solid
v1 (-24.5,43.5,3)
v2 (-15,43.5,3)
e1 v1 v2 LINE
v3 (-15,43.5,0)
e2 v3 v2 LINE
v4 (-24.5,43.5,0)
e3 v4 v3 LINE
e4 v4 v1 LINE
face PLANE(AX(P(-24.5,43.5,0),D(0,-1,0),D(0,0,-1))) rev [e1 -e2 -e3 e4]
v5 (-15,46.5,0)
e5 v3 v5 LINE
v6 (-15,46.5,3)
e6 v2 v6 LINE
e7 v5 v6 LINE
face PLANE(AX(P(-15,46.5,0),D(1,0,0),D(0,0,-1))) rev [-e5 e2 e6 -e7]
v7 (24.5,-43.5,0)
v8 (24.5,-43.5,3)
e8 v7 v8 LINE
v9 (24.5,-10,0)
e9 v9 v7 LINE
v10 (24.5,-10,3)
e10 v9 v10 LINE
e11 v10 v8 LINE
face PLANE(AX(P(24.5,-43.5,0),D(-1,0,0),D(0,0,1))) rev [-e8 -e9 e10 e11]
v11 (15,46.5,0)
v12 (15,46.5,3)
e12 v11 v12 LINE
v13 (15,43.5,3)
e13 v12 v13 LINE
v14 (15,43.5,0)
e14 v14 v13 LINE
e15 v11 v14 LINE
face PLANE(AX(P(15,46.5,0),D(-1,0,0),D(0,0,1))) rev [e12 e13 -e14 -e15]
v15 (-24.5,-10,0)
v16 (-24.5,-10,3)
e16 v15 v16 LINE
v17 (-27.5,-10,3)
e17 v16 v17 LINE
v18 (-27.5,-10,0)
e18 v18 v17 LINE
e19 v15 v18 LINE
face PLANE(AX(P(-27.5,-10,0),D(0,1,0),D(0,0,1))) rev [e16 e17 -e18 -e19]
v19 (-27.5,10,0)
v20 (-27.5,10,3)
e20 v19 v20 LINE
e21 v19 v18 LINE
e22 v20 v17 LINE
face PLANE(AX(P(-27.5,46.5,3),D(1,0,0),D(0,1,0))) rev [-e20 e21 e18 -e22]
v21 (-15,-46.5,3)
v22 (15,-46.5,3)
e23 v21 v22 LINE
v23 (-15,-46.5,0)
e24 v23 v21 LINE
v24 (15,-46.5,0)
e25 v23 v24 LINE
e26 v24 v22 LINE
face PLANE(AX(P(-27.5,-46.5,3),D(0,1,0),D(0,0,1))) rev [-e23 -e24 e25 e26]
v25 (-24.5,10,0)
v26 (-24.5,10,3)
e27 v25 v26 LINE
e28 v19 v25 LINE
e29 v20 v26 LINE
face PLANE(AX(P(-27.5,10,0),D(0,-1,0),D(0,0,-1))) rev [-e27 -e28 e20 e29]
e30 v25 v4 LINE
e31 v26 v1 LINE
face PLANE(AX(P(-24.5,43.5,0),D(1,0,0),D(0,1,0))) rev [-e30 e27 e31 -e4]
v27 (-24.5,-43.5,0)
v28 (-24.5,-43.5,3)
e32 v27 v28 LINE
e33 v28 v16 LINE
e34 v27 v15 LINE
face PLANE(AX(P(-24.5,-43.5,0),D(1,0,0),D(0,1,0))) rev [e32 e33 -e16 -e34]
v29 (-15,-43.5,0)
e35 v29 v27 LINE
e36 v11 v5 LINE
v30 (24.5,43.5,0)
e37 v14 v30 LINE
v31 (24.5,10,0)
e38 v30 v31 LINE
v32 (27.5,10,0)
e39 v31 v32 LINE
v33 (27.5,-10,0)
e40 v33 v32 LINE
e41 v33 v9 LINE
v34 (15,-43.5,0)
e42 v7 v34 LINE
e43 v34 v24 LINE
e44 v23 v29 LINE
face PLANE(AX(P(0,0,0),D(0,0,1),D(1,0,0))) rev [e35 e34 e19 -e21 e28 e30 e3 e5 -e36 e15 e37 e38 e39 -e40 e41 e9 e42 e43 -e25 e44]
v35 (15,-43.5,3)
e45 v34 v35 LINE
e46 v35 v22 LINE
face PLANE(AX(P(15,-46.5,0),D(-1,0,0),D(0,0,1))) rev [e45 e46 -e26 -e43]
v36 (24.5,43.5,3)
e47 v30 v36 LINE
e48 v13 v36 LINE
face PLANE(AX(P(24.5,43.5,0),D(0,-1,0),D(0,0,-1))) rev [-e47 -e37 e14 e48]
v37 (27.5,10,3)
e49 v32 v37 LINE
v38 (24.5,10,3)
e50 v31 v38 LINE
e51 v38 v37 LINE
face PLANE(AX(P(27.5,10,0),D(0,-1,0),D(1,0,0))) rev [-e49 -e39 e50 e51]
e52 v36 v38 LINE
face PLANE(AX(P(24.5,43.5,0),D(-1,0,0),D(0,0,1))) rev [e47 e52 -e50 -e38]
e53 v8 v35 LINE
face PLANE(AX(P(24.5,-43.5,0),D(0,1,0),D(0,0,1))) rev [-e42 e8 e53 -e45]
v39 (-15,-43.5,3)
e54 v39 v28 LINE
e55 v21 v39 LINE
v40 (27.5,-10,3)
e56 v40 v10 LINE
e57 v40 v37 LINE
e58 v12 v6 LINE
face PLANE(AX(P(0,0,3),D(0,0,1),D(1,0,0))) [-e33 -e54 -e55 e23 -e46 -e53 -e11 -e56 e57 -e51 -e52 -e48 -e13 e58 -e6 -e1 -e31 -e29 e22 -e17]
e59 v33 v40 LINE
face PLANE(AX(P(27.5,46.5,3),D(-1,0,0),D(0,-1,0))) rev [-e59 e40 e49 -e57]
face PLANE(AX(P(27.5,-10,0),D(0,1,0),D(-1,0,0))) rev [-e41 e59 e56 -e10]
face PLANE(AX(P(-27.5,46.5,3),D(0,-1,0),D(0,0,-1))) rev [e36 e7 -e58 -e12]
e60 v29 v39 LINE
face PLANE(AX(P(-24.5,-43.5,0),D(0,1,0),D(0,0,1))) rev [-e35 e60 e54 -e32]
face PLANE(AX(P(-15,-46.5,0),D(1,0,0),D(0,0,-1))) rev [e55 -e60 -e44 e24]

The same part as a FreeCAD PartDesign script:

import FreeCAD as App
import Part
import Sketcher
from FreeCAD import Vector


def add_polygon(sketch, points):
    """Adds a closed chain of lines whose ends are joined by coincident constraints."""
    first, n = sketch.GeometryCount, len(points)
    for a, b in zip(points, points[1:] + points[:1]):
        sketch.addGeometry(Part.LineSegment(App.Vector(*a, 0), App.Vector(*b, 0)), False)
    for i in range(n):
        sketch.addConstraint(Sketcher.Constraint("Coincident", first + i, 2, first + (i + 1) % n, 1))

doc = App.newDocument("Part")
params = doc.addObject("Spreadsheet::Sheet", "Params")
for row, (alias, value) in enumerate([
    ("sketch1_width", "55 mm"),
    ("sketch1_height", "93 mm"),
    ("pad1_length", "3 mm"),
    ("sketch2_width", "3 mm"),
    ("sketch2_width2", "12.5 mm"),
    ("sketch2_height", "36.5 mm"),
    ("pocket1_length", "3 mm"),
], start=1):
    params.set(f"A{row}", alias)
    params.set(f"B{row}", "=" + value)
    params.setAlias(f"B{row}", alias)

body = doc.addObject("PartDesign::Body", "Body")

# Sketch on XY plane
sketch1 = body.newObject("Sketcher::SketchObject", "Sketch")
sketch1.AttachmentSupport = (doc.getObject("XY_Plane"), [""])
sketch1.MapMode = "FlatFace"
add_polygon(sketch1, [(-27.5, 46.5), (-27.5, -46.5), (27.5, -46.5), (27.5, 46.5)])  # lines 0-3
sketch1.addConstraint([
    Sketcher.Constraint("Vertical", 0),
    Sketcher.Constraint("Horizontal", 1),
    Sketcher.Constraint("Vertical", 2),
    Sketcher.Constraint("Horizontal", 3),
    Sketcher.Constraint("Symmetric", 0, 2, 2, 2, -1, 1),
    Sketcher.Constraint("DistanceX", 1, 1, 1, 2, 55.0),
    Sketcher.Constraint("DistanceY", 0, 2, 0, 1, 93.0),
])
sketch1.setExpression("Constraints[9]", "Params.sketch1_width")
sketch1.setExpression("Constraints[10]", "Params.sketch1_height")
pad1 = body.newObject("PartDesign::Pad", "Pad")
pad1.Profile = sketch1
pad1.setExpression("Length", "Params.pad1_length")

# Sketch on XY plane
sketch2 = body.newObject("Sketcher::SketchObject", "Sketch001")
sketch2.AttachmentSupport = (doc.getObject("XY_Plane"), [""])
sketch2.MapMode = "FlatFace"
sketch2.AttachmentOffset = App.Placement(Vector(0, 0, 3), App.Rotation())
add_polygon(sketch2, [(-15, 46.5), (-27.5, 46.5), (-27.5, 10), (-24.5, 10), (-24.5, 43.5), (-15, 43.5)])  # lines 0-5
add_polygon(sketch2, [(-27.5, -10), (-27.5, -46.5), (-15, -46.5), (-15, -43.5), (-24.5, -43.5), (-24.5, -10)])  # lines 6-11
add_polygon(sketch2, [(15, -46.5), (27.5, -46.5), (27.5, -10), (24.5, -10), (24.5, -43.5), (15, -43.5)])  # lines 12-17
add_polygon(sketch2, [(27.5, 10), (27.5, 46.5), (15, 46.5), (15, 43.5), (24.5, 43.5), (24.5, 10)])  # lines 18-23
sketch2.addConstraint([
    Sketcher.Constraint("Horizontal", 0),
    Sketcher.Constraint("Vertical", 1),
    Sketcher.Constraint("Horizontal", 2),
    Sketcher.Constraint("Vertical", 3),
    Sketcher.Constraint("Horizontal", 4),
    Sketcher.Constraint("Vertical", 5),
    Sketcher.Constraint("Vertical", 6),
    Sketcher.Constraint("Horizontal", 7),
    Sketcher.Constraint("Vertical", 8),
    Sketcher.Constraint("Horizontal", 9),
    Sketcher.Constraint("Vertical", 10),
    Sketcher.Constraint("Horizontal", 11),
    Sketcher.Constraint("Horizontal", 12),
    Sketcher.Constraint("Vertical", 13),
    Sketcher.Constraint("Horizontal", 14),
    Sketcher.Constraint("Vertical", 15),
    Sketcher.Constraint("Horizontal", 16),
    Sketcher.Constraint("Vertical", 17),
    Sketcher.Constraint("Vertical", 18),
    Sketcher.Constraint("Horizontal", 19),
    Sketcher.Constraint("Vertical", 20),
    Sketcher.Constraint("Horizontal", 21),
    Sketcher.Constraint("Vertical", 22),
    Sketcher.Constraint("Horizontal", 23),
    Sketcher.Constraint("Symmetric", 0, 2, 12, 2, -1, 1),
    Sketcher.Constraint("Symmetric", 2, 2, 14, 2, -1, 1),
    Sketcher.Constraint("Symmetric", 4, 2, 16, 2, -1, 1),
    Sketcher.Constraint("Symmetric", 6, 2, 18, 2, -1, 1),
    Sketcher.Constraint("Symmetric", 8, 2, 20, 2, -1, 1),
    Sketcher.Constraint("Symmetric", 10, 2, 22, 2, -1, 1),
    Sketcher.Constraint("Symmetric", 6, 2, 12, 2, -2),
    Sketcher.Constraint("Symmetric", 10, 2, 14, 2, -2),
    Sketcher.Constraint("Symmetric", 8, 2, 16, 2, -2),
    Sketcher.Constraint("Equal", 23, 5),
    Sketcher.Constraint("DistanceX", 2, 1, 2, 2, 3.0),
    Sketcher.Constraint("DistanceX", 0, 2, 0, 1, 12.5),
    Sketcher.Constraint("DistanceY", 1, 2, 1, 1, 36.5),
    Sketcher.Constraint("DistanceY", -1, 1, 1, 2, 10.0),
    Sketcher.Constraint("DistanceX", 4, 2, -1, 1, 15.0),
])
sketch2.setExpression("Constraints[58]", "Params.sketch2_width")
sketch2.setExpression("Constraints[59]", "Params.sketch2_width2")
sketch2.setExpression("Constraints[60]", "Params.sketch2_height")
pocket1 = body.newObject("PartDesign::Pocket", "Pocket")
pocket1.Profile = sketch2
pocket1.setExpression("Length", "Params.pocket1_length")

doc.recompute()
